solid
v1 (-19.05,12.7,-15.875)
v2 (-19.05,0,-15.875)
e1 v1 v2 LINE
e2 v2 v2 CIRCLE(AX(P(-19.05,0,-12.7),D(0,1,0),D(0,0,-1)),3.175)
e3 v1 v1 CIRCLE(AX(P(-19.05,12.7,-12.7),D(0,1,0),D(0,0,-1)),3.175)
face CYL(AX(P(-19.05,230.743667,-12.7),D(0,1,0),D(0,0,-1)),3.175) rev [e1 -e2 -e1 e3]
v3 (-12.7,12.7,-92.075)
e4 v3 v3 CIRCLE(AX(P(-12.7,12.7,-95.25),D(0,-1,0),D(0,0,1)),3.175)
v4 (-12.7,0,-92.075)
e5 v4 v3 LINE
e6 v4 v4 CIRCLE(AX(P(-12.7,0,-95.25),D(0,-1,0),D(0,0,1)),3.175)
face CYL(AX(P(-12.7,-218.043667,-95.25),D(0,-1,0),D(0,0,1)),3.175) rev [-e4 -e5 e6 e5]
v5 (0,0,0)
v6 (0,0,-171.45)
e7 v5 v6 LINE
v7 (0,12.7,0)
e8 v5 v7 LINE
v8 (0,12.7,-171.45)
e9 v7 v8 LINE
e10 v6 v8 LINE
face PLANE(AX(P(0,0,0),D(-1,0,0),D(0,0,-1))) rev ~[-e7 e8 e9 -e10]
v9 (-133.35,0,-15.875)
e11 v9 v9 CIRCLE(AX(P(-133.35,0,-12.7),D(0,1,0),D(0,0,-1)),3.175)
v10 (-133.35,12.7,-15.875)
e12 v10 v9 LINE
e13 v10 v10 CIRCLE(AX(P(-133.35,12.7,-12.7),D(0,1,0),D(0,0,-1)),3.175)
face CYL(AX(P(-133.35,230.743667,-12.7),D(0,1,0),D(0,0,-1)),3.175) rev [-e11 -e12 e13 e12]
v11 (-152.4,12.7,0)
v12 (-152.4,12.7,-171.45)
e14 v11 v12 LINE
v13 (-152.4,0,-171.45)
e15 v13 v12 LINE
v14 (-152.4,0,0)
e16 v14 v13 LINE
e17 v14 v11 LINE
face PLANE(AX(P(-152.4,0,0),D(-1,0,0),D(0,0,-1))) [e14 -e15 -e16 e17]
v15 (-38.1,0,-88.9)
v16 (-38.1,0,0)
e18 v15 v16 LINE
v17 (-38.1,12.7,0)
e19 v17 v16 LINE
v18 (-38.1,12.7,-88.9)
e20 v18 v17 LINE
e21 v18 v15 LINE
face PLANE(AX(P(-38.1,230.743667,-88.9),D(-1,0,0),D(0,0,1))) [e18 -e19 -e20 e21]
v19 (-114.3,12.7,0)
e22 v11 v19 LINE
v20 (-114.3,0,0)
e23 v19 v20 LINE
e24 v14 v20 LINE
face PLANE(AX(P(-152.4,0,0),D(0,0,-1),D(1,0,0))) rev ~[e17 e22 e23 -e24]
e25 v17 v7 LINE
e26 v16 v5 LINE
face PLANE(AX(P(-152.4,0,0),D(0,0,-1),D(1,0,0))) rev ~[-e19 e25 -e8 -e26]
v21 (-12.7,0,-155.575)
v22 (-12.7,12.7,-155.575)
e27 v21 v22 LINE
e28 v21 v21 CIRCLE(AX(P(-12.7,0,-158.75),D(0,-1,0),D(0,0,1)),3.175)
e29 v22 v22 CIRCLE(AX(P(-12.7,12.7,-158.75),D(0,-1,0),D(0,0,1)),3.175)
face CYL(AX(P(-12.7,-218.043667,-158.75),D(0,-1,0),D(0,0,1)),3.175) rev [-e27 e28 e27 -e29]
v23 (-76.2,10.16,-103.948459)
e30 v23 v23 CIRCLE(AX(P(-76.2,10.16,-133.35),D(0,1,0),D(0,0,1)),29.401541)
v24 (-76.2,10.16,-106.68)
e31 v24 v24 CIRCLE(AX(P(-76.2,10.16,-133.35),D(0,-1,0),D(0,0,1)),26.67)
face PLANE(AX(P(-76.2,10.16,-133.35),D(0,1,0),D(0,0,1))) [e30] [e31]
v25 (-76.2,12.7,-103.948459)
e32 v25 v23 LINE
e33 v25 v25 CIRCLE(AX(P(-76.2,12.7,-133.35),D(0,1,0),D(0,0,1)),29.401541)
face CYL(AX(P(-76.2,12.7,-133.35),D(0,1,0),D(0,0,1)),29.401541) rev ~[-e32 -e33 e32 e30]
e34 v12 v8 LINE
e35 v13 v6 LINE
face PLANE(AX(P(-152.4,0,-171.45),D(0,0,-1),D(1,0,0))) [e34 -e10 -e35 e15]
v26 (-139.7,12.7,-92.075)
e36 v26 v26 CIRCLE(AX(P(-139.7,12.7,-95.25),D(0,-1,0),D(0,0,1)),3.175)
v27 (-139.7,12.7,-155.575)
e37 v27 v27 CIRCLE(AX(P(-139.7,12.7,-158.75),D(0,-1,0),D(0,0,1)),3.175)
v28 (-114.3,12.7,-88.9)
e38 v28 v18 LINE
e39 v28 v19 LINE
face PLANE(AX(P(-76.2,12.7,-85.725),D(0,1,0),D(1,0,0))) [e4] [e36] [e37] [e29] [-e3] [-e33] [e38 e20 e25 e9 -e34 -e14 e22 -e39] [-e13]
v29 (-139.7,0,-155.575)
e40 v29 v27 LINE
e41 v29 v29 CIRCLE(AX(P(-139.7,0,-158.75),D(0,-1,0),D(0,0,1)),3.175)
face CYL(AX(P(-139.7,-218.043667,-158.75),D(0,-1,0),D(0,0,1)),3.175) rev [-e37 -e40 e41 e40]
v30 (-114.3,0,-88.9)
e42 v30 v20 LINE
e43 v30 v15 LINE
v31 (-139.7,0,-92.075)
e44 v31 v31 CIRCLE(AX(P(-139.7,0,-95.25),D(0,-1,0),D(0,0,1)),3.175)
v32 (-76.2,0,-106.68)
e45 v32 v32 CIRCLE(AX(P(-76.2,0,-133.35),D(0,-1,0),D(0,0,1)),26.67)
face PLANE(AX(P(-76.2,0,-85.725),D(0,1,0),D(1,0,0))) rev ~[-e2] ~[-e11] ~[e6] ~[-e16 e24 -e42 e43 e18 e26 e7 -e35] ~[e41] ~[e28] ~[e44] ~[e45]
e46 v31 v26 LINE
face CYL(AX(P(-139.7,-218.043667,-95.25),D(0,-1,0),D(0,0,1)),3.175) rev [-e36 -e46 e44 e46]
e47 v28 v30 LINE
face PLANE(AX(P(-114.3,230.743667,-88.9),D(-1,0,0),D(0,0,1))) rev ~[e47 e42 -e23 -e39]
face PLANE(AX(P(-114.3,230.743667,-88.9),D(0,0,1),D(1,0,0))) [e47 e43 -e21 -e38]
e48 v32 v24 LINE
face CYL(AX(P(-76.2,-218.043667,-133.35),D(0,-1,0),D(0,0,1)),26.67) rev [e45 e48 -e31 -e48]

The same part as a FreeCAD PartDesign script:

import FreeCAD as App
import Part
import Sketcher
from FreeCAD import Vector
Q = App.Units.Quantity


def add_polygon(sketch, points):
    """Adds a closed chain of lines whose ends are joined by coincident constraints."""
    first, n = sketch.GeometryCount, len(points)
    for a, b in zip(points, points[1:] + points[:1]):
        sketch.addGeometry(Part.LineSegment(App.Vector(*a, 0), App.Vector(*b, 0)), False)
    for i in range(n):
        sketch.addConstraint(Sketcher.Constraint("Coincident", first + i, 2, first + (i + 1) % n, 1))

doc = App.newDocument("Part")
body = doc.addObject("PartDesign::Body", "Body")

# Sketch on XZ plane
sketch1 = body.newObject("Sketcher::SketchObject", "Sketch")
sketch1.AttachmentSupport = (doc.getObject("XZ_Plane"), [""])
sketch1.MapMode = "FlatFace"
add_polygon(sketch1, [(-152.4, -171.45), (-152.4, 0), (0, 0), (0, -171.45)])  # lines 0-3
sketch1.addConstraint([
    Sketcher.Constraint("Vertical", 0),
    Sketcher.Constraint("Horizontal", 1),
    Sketcher.Constraint("Vertical", 2),
    Sketcher.Constraint("Horizontal", 3),
    Sketcher.Constraint("Coincident", 1, 2, -1, 1),
    Sketcher.Constraint("DistanceX", 1, 1, 1, 2, Q("6 in")),
    Sketcher.Constraint("DistanceY", 0, 1, 0, 2, Q("6.75 in")),
])
pad1 = body.newObject("PartDesign::Pad", "Pad")
pad1.Profile = sketch1
pad1.Length = Q("0.5 in")
pad1.Reversed = True

# Sketch on XZ plane
sketch2 = body.newObject("Sketcher::SketchObject", "Sketch001")
sketch2.AttachmentSupport = (doc.getObject("XZ_Plane"), [""])
sketch2.MapMode = "FlatFace"
sketch2.AttachmentOffset = App.Placement(Vector(0, 0, -0.5 * 25.4), App.Rotation())
sketch2.addGeometry(Part.Circle(Vector(-76.2, -133.35, 0), Vector(0, 0, 1), 26.67), False)
sketch2.addConstraint([
    Sketcher.Constraint("Diameter", 0, Q("2.1 in")),
    Sketcher.Constraint("DistanceX", 0, 3, -1, 1, Q("3 in")),
    Sketcher.Constraint("DistanceY", 0, 3, -1, 1, Q("5.25 in")),
])
pocket1 = body.newObject("PartDesign::Pocket", "Pocket")
pocket1.Profile = sketch2
pocket1.Type = "ThroughAll"
pocket1.Midplane = True

# Sketch on XZ plane
sketch3 = body.newObject("Sketcher::SketchObject", "Sketch002")
sketch3.AttachmentSupport = (doc.getObject("XZ_Plane"), [""])
sketch3.MapMode = "FlatFace"
sketch3.AttachmentOffset = App.Placement(Vector(0, 0, -0.5 * 25.4), App.Rotation())
sketch3.addGeometry([
    Part.Circle(Vector(-139.7, -158.75, 0), Vector(0, 0, 1), 3.175),
    Part.Circle(Vector(-12.7, -158.75, 0), Vector(0, 0, 1), 3.175),
    Part.Circle(Vector(-12.7, -95.25, 0), Vector(0, 0, 1), 3.175),
    Part.Circle(Vector(-139.7, -95.25, 0), Vector(0, 0, 1), 3.175),
], False)
sketch3.addConstraint([
    Sketcher.Constraint("Equal", 0, 1),
    Sketcher.Constraint("Equal", 1, 2),
    Sketcher.Constraint("Equal", 2, 3),
    Sketcher.Constraint("Horizontal", 0, 3, 1, 3),
    Sketcher.Constraint("Horizontal", 2, 3, 3, 3),
    Sketcher.Constraint("Vertical", 1, 3, 2, 3),
    Sketcher.Constraint("Vertical", 0, 3, 3, 3),
    Sketcher.Constraint("Diameter", 0, Q("0.25 in")),
    Sketcher.Constraint("DistanceX", 0, 3, 1, 3, Q("5 in")),
    Sketcher.Constraint("DistanceX", 0, 3, -1, 1, Q("5.5 in")),
    Sketcher.Constraint("DistanceY", 1, 3, 2, 3, Q("2.5 in")),
    Sketcher.Constraint("DistanceY", 0, 3, -1, 1, Q("6.25 in")),
])
pocket2 = body.newObject("PartDesign::Pocket", "Pocket001")
pocket2.Profile = sketch3
pocket2.Type = "ThroughAll"
pocket2.Midplane = True

# Sketch on XZ plane
sketch4 = body.newObject("Sketcher::SketchObject", "Sketch003")
sketch4.AttachmentSupport = (doc.getObject("XZ_Plane"), [""])
sketch4.MapMode = "FlatFace"
sketch4.AttachmentOffset = App.Placement(Vector(0, 0, -0.5 * 25.4), App.Rotation())
sketch4.addGeometry(Part.Circle(Vector(-76.2, -133.35, 0), Vector(0, 0, 1), 29.401541), False)
sketch4.addConstraint([
    Sketcher.Constraint("DistanceX", 0, 3, -1, 1, Q("3 in")),
    Sketcher.Constraint("DistanceY", 0, 3, -1, 1, Q("5.25 in")),
    Sketcher.Constraint("Diameter", 0, 58.803081),
])
pocket3 = body.newObject("PartDesign::Pocket", "Pocket002")
pocket3.Profile = sketch4
pocket3.Length = Q("0.1 in")
pocket3.Reversed = True

# Sketch on XZ plane
sketch5 = body.newObject("Sketcher::SketchObject", "Sketch004")
sketch5.AttachmentSupport = (doc.getObject("XZ_Plane"), [""])
sketch5.MapMode = "FlatFace"
add_polygon(sketch5, [(-114.3, 0), (-114.3, -88.9), (-38.1, -88.9), (-38.1, 0)])  # lines 0-3
sketch5.addConstraint([
    Sketcher.Constraint("Vertical", 0),
    Sketcher.Constraint("Horizontal", 1),
    Sketcher.Constraint("Vertical", 2),
    Sketcher.Constraint("Horizontal", 3),
    Sketcher.Constraint("PointOnObject", 2, 2, -1),
    Sketcher.Constraint("DistanceX", 1, 1, 1, 2, Q("3 in")),
    Sketcher.Constraint("DistanceY", 0, 2, 0, 1, Q("3.5 in")),
    Sketcher.Constraint("DistanceX", 0, 2, -1, 1, Q("4.5 in")),
])
pocket4 = body.newObject("PartDesign::Pocket", "Pocket003")
pocket4.Profile = sketch5
pocket4.Type = "ThroughAll"
pocket4.Midplane = True

# Sketch on XZ plane
sketch6 = body.newObject("Sketcher::SketchObject", "Sketch005")
sketch6.AttachmentSupport = (doc.getObject("XZ_Plane"), [""])
sketch6.MapMode = "FlatFace"
sketch6.addGeometry([
    Part.Circle(Vector(-19.05, -12.7, 0), Vector(0, 0, 1), 3.175),
    Part.Circle(Vector(-133.35, -12.7, 0), Vector(0, 0, 1), 3.175),
], False)
sketch6.addConstraint([
    Sketcher.Constraint("Equal", 0, 1),
    Sketcher.Constraint("Horizontal", 0, 3, 1, 3),
    Sketcher.Constraint("Diameter", 0, Q("0.25 in")),
    Sketcher.Constraint("DistanceY", 0, 3, -1, 1, Q("0.5 in")),
    Sketcher.Constraint("DistanceX", 1, 3, 0, 3, Q("4.5 in")),
    Sketcher.Constraint("DistanceX", 0, 3, -1, 1, Q("0.75 in")),
])
pocket5 = body.newObject("PartDesign::Pocket", "Pocket004")
pocket5.Profile = sketch6
pocket5.Type = "ThroughAll"
pocket5.Midplane = True

doc.recompute()
